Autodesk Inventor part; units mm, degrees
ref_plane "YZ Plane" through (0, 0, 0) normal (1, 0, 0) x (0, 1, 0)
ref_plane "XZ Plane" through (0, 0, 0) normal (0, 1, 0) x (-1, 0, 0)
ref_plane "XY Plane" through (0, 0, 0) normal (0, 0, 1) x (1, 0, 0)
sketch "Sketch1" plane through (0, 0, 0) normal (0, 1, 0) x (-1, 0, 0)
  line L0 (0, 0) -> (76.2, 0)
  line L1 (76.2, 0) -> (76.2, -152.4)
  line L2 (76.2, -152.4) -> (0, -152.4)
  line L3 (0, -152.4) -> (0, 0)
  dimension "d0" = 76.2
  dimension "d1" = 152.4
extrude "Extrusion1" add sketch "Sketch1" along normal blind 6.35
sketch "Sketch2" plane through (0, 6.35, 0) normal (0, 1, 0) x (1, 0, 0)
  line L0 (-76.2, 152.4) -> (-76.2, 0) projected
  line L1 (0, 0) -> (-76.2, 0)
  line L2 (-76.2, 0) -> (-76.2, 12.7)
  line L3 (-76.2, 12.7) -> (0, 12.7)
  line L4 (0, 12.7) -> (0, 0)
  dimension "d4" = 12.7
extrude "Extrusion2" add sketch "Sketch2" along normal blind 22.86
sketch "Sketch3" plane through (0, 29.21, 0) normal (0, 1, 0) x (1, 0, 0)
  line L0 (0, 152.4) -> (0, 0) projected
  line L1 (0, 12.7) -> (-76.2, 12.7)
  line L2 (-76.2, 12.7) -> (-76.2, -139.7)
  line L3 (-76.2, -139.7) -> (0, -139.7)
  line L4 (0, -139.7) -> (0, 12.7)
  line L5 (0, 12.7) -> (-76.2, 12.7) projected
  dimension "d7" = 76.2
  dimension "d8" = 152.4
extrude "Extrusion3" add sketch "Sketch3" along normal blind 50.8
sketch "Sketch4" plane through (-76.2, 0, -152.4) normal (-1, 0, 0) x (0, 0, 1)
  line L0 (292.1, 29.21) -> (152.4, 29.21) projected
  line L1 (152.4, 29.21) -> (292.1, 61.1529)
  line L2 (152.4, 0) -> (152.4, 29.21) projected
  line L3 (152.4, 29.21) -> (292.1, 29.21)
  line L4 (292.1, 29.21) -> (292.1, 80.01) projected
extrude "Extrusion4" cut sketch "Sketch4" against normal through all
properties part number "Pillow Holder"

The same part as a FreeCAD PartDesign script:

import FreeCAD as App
import Part
import Sketcher
Q = App.Units.Quantity

doc = App.newDocument("Part")
body = doc.addObject("PartDesign::Body", "Body")

# Sketch on XZ plane
sketch1 = body.newObject("Sketcher::SketchObject", "Sketch")
sketch1.AttachmentSupport = (doc.getObject("XZ_Plane"), [""])
sketch1.MapMode = "FlatFace"
sketch1.addGeometry([
    Part.LineSegment(App.Vector(-76, 0, 0), App.Vector(0, 0, 0)),
    Part.LineSegment(App.Vector(0, 0, 0), App.Vector(0, -152, 0)),
    Part.LineSegment(App.Vector(0, -152, 0), App.Vector(-76, -152, 0)),
    Part.LineSegment(App.Vector(-76, -152, 0), App.Vector(-76, 0, 0)),
], False)
sketch1.addConstraint([
    Sketcher.Constraint("Coincident", 0, 2, 1, 1),
    Sketcher.Constraint("Coincident", 1, 2, 2, 1),
    Sketcher.Constraint("Coincident", 2, 2, 3, 1),
    Sketcher.Constraint("Coincident", 3, 2, 0, 1),
    Sketcher.Constraint("Horizontal", 0),
    Sketcher.Constraint("Vertical", 1),
    Sketcher.Constraint("Horizontal", 2),
    Sketcher.Constraint("Vertical", 3),
    Sketcher.Constraint("Coincident", 0, 2, -1, 1),
    Sketcher.Constraint("DistanceX", 0, 1, 0, 2, Q("3 in")),
    Sketcher.Constraint("DistanceY", 1, 2, 1, 1, Q("6 in")),
])
pad1 = body.newObject("PartDesign::Pad", "Pad")
pad1.Profile = sketch1
pad1.Length = Q("0.25 in")
pad1.Reversed = True

# Sketch on XZ plane
sketch2 = body.newObject("Sketcher::SketchObject", "Sketch001")
sketch2.AttachmentSupport = (doc.getObject("XZ_Plane"), [""])
sketch2.MapMode = "FlatFace"
sketch2.AttachmentOffset = App.Placement(App.Vector(0, 0, -0.25 * 25.4), App.Rotation())
sketch2.addGeometry([
    Part.LineSegment(App.Vector(0, -13, 0), App.Vector(-76, -13, 0)),
    Part.LineSegment(App.Vector(-76, -13, 0), App.Vector(-76, 0, 0)),
    Part.LineSegment(App.Vector(-76, 0, 0), App.Vector(0, 0, 0)),
    Part.LineSegment(App.Vector(0, 0, 0), App.Vector(0, -13, 0)),
], False)
sketch2.addConstraint([
    Sketcher.Constraint("Coincident", 0, 2, 1, 1),
    Sketcher.Constraint("Coincident", 1, 2, 2, 1),
    Sketcher.Constraint("Coincident", 2, 2, 3, 1),
    Sketcher.Constraint("Coincident", 3, 2, 0, 1),
    Sketcher.Constraint("Horizontal", 0),
    Sketcher.Constraint("Vertical", 1),
    Sketcher.Constraint("Horizontal", 2),
    Sketcher.Constraint("Vertical", 3),
    Sketcher.Constraint("Coincident", 2, 2, -1, 1),
    Sketcher.Constraint("DistanceY", 1, 1, 1, 2, Q("0.5 in")),
    Sketcher.Constraint("DistanceX", 0, 2, 0, 1, Q("3 in")),
])
pad2 = body.newObject("PartDesign::Pad", "Pad001")
pad2.Profile = sketch2
pad2.Length = Q("0.9 in")
pad2.Reversed = True

# Sketch on XZ plane
sketch3 = body.newObject("Sketcher::SketchObject", "Sketch002")
sketch3.AttachmentSupport = (doc.getObject("XZ_Plane"), [""])
sketch3.MapMode = "FlatFace"
sketch3.AttachmentOffset = App.Placement(App.Vector(0, 0, -1.15 * 25.4), App.Rotation())
sketch3.addGeometry([
    Part.LineSegment(App.Vector(0, 140, 0), App.Vector(0, -13, 0)),
    Part.LineSegment(App.Vector(0, -13, 0), App.Vector(-76, -13, 0)),
    Part.LineSegment(App.Vector(-76, -13, 0), App.Vector(-76, 140, 0)),
    Part.LineSegment(App.Vector(-76, 140, 0), App.Vector(0, 140, 0)),
], False)
sketch3.addConstraint([
    Sketcher.Constraint("Coincident", 0, 2, 1, 1),
    Sketcher.Constraint("Coincident", 1, 2, 2, 1),
    Sketcher.Constraint("Coincident", 2, 2, 3, 1),
    Sketcher.Constraint("Coincident", 3, 2, 0, 1),
    Sketcher.Constraint("Vertical", 0),
    Sketcher.Constraint("Horizontal", 1),
    Sketcher.Constraint("Vertical", 2),
    Sketcher.Constraint("Horizontal", 3),
    Sketcher.Constraint("PointOnObject", 0, 2, -2),
    Sketcher.Constraint("DistanceX", 1, 2, 1, 1, Q("3 in")),
    Sketcher.Constraint("DistanceY", 0, 2, 0, 1, Q("6 in")),
    Sketcher.Constraint("DistanceY", 0, 2, -1, 1, Q("0.5 in")),
])
pad3 = body.newObject("PartDesign::Pad", "Pad002")
pad3.Profile = sketch3
pad3.Length = Q("2 in")
pad3.Reversed = True

# Sketch on YZ plane
sketch4 = body.newObject("Sketcher::SketchObject", "Sketch003")
sketch4.AttachmentSupport = (doc.getObject("YZ_Plane"), [""])
sketch4.MapMode = "FlatFace"
sketch4.AttachmentOffset = App.Placement(App.Vector(0, 0, -3 * 25.4), App.Rotation())
sketch4.addGeometry([
    Part.LineSegment(App.Vector(29, 0, 0), App.Vector(29, 140, 0)),
    Part.LineSegment(App.Vector(29, 140, 0), App.Vector(61, 140, 0)),
    Part.LineSegment(App.Vector(61, 140, 0), App.Vector(29, 0, 0)),
], False)
sketch4.addConstraint([
    Sketcher.Constraint("Coincident", 0, 2, 1, 1),
    Sketcher.Constraint("Coincident", 1, 2, 2, 1),
    Sketcher.Constraint("Coincident", 2, 2, 0, 1),
    Sketcher.Constraint("Vertical", 0),
    Sketcher.Constraint("Horizontal", 1),
    Sketcher.Constraint("PointOnObject", 2, 2, -1),
    Sketcher.Constraint("DistanceY", 0, 1, 0, 2, Q("5.5 in")),
    Sketcher.Constraint("DistanceX", -1, 1, 0, 2, Q("1.15 in")),
    Sketcher.Constraint("Angle", 2, Q("-102.8795 deg")),
])
pocket1 = body.newObject("PartDesign::Pocket", "Pocket")
pocket1.Profile = sketch4
pocket1.Type = "ThroughAll"
pocket1.Reversed = True

doc.recompute()
